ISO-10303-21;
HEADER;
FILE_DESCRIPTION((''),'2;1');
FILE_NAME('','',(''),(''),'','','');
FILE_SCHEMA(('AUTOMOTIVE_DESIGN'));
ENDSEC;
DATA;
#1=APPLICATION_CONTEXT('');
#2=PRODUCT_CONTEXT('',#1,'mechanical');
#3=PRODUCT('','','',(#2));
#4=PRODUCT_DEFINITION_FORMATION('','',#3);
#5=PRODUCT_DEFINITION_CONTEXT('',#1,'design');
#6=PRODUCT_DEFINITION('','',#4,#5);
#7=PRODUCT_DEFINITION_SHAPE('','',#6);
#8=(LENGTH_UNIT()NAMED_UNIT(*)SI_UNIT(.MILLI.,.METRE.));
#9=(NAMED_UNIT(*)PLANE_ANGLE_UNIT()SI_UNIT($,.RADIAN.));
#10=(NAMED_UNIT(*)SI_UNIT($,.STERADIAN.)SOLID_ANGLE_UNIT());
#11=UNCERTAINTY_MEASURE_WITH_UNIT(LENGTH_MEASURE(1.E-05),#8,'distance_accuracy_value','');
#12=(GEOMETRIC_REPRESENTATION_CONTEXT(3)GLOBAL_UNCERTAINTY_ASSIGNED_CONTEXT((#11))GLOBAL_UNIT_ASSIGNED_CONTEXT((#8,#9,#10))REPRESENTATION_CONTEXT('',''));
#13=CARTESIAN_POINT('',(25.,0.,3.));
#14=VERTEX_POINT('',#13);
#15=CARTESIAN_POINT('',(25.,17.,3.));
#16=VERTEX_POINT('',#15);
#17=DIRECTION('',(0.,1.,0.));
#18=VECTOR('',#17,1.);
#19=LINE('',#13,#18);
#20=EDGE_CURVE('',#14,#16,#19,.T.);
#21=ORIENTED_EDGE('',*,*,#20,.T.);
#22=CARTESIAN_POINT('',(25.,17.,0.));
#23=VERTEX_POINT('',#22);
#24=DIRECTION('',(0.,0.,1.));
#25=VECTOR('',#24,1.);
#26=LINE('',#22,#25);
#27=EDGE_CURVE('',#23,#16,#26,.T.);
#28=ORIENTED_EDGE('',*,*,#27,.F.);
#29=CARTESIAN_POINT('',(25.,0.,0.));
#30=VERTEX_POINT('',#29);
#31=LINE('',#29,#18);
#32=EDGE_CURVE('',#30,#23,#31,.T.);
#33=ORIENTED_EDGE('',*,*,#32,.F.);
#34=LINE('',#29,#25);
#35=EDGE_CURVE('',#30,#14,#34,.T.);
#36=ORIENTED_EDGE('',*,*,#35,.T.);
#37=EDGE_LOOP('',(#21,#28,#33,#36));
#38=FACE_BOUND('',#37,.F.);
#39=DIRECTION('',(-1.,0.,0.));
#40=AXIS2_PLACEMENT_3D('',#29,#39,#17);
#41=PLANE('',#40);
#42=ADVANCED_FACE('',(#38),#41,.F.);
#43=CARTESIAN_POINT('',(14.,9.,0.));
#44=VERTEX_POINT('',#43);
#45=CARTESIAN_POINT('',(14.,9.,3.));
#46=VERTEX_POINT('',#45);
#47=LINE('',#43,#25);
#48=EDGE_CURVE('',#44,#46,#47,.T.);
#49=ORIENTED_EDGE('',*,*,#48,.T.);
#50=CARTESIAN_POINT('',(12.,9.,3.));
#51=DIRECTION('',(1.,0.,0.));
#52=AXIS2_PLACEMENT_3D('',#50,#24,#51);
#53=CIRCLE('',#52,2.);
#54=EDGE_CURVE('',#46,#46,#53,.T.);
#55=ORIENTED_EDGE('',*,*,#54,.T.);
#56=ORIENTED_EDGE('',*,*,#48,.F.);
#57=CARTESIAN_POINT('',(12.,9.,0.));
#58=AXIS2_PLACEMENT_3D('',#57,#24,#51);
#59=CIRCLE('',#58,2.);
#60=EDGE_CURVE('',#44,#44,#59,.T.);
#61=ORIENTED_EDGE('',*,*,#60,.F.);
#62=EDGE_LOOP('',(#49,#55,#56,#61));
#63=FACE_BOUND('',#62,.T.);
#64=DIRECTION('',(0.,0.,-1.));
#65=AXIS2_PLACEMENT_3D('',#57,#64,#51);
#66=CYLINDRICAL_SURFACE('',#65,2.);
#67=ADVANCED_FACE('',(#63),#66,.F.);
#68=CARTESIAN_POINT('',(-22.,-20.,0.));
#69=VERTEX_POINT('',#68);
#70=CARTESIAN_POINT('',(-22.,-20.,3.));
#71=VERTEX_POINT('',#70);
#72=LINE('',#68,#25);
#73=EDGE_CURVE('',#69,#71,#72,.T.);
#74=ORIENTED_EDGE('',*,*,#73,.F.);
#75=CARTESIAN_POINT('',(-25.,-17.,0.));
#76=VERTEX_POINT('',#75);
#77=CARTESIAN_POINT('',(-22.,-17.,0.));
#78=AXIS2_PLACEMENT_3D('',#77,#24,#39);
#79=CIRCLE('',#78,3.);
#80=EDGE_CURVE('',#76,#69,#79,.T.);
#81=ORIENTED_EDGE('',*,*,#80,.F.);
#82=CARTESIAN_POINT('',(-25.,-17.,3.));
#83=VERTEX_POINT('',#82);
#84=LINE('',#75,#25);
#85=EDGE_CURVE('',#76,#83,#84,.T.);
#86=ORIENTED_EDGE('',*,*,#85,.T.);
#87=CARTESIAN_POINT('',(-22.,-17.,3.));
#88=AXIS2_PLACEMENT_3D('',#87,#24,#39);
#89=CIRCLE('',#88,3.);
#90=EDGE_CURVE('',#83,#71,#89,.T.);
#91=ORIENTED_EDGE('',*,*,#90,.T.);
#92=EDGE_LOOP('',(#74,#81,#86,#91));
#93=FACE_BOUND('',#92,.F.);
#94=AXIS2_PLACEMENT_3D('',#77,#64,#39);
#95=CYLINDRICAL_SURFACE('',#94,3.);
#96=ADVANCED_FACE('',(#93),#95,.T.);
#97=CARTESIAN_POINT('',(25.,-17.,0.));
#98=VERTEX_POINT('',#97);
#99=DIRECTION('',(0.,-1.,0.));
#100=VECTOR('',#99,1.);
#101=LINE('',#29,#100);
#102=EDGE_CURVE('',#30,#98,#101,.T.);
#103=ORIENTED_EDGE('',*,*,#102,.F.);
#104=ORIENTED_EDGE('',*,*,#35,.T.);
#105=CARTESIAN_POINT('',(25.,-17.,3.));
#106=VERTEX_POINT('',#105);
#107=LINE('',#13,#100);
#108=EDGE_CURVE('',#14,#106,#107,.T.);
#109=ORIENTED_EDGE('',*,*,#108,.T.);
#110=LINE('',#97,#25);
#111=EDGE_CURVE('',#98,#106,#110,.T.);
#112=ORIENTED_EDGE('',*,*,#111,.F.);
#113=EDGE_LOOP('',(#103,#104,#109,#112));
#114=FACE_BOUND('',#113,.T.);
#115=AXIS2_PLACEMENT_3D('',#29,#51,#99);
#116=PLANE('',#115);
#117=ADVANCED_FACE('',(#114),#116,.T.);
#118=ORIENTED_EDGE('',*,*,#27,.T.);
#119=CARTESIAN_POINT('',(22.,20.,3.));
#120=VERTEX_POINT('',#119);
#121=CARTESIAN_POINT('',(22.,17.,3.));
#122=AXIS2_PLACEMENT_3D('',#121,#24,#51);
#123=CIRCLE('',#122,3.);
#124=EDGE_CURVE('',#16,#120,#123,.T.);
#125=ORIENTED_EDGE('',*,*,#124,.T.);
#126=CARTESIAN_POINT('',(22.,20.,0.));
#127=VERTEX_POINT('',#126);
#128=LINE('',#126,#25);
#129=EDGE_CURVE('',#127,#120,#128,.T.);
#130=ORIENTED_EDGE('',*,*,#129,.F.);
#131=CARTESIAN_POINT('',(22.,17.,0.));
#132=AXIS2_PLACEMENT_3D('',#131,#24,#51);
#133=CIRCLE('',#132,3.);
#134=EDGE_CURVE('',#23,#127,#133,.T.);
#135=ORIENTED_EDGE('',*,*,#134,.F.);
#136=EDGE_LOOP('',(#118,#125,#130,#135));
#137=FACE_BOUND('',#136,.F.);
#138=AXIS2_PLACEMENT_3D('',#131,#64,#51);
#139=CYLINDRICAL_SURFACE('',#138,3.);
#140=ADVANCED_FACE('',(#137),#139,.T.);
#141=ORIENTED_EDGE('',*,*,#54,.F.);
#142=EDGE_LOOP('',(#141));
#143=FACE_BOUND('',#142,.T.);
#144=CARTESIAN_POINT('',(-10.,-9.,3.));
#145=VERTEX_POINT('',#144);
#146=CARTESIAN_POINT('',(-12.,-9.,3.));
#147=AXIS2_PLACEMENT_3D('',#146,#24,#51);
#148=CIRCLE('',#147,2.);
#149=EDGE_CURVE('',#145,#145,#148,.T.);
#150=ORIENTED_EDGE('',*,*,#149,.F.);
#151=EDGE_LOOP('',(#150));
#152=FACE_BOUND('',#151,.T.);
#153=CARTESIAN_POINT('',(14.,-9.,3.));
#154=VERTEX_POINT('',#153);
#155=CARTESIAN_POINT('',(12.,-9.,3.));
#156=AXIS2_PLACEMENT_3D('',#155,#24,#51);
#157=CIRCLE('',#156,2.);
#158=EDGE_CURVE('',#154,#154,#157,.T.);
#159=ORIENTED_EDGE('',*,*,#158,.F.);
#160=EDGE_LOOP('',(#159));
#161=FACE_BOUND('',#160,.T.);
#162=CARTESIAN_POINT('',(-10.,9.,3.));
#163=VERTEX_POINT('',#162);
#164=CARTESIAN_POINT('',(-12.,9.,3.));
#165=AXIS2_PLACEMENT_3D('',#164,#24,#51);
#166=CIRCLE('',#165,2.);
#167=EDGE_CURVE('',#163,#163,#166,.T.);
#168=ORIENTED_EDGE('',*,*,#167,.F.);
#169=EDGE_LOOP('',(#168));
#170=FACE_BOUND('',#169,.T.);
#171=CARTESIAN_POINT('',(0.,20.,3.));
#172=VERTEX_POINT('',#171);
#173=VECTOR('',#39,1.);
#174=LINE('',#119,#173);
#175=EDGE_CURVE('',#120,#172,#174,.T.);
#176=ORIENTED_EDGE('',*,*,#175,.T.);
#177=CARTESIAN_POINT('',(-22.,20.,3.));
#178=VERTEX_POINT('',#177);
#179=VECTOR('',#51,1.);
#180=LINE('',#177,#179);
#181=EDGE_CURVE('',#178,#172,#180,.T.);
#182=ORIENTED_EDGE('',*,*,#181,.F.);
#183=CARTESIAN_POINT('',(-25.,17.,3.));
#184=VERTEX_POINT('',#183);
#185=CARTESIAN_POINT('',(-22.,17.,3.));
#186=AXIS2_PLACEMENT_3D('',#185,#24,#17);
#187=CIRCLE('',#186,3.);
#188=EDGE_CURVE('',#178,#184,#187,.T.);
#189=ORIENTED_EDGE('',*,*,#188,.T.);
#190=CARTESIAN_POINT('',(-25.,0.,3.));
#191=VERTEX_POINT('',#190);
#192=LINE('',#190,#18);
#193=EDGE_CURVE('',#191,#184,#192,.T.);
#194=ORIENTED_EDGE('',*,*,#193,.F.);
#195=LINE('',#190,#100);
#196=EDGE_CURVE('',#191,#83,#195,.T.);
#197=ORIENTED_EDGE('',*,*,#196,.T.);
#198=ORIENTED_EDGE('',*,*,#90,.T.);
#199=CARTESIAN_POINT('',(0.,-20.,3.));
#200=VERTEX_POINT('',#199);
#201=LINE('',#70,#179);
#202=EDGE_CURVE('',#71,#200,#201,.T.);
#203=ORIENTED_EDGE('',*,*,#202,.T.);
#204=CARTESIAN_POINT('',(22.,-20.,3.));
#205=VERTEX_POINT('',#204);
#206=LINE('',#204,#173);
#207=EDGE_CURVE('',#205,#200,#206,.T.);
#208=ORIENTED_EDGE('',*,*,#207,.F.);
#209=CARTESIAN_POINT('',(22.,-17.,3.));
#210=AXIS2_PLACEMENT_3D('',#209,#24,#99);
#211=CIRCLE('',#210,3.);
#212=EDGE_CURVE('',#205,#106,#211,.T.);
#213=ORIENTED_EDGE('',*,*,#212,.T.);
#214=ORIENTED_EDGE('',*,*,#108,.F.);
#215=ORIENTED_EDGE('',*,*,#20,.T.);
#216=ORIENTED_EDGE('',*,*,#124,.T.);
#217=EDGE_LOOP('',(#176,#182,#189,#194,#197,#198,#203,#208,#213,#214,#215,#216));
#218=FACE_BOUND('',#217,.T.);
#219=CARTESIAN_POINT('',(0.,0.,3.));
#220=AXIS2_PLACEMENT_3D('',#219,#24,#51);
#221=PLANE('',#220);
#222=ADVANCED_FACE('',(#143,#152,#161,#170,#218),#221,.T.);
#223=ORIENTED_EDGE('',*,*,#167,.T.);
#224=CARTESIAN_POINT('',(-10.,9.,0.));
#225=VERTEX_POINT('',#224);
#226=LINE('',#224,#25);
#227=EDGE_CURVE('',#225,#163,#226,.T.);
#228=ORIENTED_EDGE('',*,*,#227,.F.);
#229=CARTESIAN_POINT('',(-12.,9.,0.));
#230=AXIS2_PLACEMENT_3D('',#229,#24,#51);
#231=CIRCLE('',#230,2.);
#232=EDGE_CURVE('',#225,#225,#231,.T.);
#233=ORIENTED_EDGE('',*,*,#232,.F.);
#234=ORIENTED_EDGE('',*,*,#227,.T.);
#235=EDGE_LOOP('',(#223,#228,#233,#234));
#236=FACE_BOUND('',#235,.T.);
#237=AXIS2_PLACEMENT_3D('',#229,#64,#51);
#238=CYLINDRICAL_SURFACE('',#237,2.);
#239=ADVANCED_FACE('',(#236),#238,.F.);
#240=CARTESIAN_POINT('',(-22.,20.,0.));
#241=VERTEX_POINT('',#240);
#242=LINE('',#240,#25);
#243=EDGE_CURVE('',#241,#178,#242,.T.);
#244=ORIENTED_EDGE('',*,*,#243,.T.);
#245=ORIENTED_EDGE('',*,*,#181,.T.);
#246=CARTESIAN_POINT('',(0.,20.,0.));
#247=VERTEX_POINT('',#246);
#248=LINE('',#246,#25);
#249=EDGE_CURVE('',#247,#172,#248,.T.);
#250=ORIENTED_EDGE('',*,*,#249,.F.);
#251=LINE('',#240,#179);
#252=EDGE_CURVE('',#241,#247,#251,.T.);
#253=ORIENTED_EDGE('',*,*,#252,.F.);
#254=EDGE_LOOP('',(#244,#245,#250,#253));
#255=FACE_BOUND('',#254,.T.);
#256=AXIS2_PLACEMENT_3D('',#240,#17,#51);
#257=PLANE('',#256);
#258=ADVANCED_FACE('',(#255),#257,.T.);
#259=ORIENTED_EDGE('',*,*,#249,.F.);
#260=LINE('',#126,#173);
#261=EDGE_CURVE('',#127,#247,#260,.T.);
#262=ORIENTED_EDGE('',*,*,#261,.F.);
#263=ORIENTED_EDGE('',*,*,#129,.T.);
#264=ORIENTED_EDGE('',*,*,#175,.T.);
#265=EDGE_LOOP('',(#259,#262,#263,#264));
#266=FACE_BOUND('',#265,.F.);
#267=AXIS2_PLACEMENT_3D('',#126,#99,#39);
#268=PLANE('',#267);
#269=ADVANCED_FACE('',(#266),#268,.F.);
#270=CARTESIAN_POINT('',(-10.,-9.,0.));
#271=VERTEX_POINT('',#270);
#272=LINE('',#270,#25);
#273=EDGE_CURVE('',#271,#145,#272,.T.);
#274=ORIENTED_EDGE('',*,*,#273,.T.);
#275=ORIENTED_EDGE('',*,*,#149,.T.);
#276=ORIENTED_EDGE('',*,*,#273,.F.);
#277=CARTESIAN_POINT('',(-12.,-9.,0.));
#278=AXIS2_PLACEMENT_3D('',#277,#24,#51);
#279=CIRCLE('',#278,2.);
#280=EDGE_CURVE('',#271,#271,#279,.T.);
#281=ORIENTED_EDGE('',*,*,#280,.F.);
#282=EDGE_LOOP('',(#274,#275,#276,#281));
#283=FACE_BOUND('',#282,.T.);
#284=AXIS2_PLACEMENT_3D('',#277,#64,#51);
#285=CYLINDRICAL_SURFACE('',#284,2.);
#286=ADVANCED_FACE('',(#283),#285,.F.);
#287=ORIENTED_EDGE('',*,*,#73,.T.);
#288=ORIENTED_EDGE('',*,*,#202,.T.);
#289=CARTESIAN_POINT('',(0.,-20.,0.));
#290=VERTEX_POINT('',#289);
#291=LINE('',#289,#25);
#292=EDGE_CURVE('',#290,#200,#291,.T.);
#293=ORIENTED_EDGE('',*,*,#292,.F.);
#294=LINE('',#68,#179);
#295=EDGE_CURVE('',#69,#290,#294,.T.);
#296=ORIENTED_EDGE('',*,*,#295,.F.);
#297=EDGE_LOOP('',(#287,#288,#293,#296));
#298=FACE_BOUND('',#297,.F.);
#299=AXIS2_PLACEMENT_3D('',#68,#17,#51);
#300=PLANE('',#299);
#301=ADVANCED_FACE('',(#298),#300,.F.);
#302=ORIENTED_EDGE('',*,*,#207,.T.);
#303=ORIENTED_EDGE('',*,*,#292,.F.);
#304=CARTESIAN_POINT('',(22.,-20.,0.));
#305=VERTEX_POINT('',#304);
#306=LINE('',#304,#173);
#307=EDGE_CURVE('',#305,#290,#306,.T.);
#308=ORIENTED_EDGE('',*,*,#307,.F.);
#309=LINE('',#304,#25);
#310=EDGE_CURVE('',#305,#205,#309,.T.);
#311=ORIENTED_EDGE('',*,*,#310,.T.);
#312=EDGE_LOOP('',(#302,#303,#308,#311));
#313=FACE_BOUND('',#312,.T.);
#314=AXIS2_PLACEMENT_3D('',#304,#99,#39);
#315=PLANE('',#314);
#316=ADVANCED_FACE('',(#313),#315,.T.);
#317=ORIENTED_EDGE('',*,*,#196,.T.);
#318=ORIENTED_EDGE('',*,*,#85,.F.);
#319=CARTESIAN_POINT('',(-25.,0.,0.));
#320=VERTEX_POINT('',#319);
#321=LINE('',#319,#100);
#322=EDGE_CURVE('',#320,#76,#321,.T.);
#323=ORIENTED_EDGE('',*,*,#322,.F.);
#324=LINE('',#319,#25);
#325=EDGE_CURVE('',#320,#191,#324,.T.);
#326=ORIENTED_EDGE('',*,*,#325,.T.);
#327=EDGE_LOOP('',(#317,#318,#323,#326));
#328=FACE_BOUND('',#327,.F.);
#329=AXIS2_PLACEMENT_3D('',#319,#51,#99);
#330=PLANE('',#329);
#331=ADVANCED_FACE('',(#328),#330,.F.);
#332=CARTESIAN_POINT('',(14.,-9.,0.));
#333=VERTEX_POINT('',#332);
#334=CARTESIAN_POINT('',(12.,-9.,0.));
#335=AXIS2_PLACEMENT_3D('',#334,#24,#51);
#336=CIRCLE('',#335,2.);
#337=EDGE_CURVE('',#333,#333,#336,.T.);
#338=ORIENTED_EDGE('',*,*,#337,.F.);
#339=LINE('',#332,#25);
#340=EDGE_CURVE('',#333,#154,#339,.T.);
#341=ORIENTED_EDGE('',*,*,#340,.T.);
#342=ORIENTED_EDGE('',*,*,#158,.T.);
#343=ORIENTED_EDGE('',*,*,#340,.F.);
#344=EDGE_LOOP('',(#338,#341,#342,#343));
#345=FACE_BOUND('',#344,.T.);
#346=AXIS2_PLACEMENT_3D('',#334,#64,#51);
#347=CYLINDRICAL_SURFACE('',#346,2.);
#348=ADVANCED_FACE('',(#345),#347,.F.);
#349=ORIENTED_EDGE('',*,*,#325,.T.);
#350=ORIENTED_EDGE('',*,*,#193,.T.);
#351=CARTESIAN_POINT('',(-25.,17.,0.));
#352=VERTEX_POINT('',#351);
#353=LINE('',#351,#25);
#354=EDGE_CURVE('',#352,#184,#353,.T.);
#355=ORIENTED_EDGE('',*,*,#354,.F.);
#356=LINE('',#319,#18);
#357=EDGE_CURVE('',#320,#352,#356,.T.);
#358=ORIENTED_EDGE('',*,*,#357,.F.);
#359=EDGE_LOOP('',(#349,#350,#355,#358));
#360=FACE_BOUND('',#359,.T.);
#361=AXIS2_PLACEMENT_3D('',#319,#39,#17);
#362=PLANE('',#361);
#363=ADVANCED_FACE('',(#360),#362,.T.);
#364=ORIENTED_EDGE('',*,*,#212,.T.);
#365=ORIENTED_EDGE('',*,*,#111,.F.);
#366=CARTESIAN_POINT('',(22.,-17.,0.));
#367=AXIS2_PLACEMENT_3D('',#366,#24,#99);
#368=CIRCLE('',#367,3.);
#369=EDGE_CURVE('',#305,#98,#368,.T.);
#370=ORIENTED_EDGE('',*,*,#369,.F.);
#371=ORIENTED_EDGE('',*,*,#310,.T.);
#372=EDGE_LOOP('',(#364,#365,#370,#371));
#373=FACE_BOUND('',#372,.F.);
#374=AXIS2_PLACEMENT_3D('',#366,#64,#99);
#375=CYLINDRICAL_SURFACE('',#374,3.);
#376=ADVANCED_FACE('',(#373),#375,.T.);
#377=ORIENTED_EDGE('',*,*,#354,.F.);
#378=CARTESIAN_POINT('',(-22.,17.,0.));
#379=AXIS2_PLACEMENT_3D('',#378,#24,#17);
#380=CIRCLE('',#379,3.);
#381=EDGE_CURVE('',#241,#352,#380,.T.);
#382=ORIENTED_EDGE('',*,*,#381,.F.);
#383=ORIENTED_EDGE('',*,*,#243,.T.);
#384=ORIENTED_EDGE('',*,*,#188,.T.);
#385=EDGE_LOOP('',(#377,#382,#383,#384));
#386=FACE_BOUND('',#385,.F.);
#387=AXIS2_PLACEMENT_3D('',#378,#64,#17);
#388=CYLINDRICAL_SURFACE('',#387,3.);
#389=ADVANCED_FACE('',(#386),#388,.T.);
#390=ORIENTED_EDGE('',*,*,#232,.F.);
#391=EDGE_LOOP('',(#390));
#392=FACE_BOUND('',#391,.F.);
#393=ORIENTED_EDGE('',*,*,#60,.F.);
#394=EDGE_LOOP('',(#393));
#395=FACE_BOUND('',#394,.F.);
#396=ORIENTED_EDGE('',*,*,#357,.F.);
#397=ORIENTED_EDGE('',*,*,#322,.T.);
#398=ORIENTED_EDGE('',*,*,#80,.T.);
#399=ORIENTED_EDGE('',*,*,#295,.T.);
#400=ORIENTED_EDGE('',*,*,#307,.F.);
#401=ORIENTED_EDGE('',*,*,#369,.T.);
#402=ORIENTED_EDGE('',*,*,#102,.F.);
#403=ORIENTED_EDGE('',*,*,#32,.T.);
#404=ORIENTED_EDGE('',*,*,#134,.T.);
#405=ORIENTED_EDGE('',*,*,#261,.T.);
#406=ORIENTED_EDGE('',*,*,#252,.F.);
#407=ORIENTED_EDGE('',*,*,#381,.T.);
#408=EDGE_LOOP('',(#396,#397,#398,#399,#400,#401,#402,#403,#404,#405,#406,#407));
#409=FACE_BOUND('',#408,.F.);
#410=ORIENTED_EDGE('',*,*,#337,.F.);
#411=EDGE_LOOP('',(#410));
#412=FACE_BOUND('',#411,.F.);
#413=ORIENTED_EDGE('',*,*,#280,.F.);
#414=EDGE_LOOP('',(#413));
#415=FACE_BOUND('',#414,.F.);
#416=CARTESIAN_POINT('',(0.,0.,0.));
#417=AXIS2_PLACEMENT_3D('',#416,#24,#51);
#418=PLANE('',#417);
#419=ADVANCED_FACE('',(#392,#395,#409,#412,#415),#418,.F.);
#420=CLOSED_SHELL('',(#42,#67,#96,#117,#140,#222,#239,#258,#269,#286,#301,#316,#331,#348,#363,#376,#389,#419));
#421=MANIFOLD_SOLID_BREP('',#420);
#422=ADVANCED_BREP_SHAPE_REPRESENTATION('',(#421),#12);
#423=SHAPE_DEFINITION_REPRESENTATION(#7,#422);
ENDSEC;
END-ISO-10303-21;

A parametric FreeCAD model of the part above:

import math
import FreeCAD as App
import Part
import Sketcher

V = App.Vector

doc = App.newDocument("Part")
params = doc.addObject("Spreadsheet::Sheet", "Params")
for row, (alias, value) in enumerate([
    ("sketch1_diameter", "4 mm"),
    ("sketch1_radius", "3 mm"),
    ("pad1_length", "3 mm"),
], start=1):
    params.set(f"A{row}", alias)
    params.set(f"B{row}", "=" + value)
    params.setAlias(f"B{row}", alias)

body = doc.addObject("PartDesign::Body", "Body")

sketch1 = body.newObject("Sketcher::SketchObject", "Sketch")
sketch1.AttachmentSupport = (doc.getObject("XY_Plane"), [""])
sketch1.MapMode = "FlatFace"
sketch1.addGeometry([
    Part.LineSegment(V(-25, 17, 0), V(-25, -17, 0)),
    Part.ArcOfCircle(Part.Circle(V(-22, -17, 0), V(0, 0, 1), 3), math.radians(180), math.radians(270)),
    Part.LineSegment(V(-22, -20, 0), V(22, -20, 0)),
    Part.ArcOfCircle(Part.Circle(V(22, -17, 0), V(0, 0, 1), 3), math.radians(-90), math.radians(0)),
    Part.LineSegment(V(25, -17, 0), V(25, 17, 0)),
    Part.ArcOfCircle(Part.Circle(V(22, 17, 0), V(0, 0, 1), 3), math.radians(0), math.radians(90)),
    Part.LineSegment(V(22, 20, 0), V(-22, 20, 0)),
    Part.ArcOfCircle(Part.Circle(V(-22, 17, 0), V(0, 0, 1), 3), math.radians(90), math.radians(180)),
    Part.Circle(V(-12, -9, 0), V(0, 0, 1), 2),
    Part.Circle(V(12, -9, 0), V(0, 0, 1), 2),
    Part.Circle(V(-12, 9, 0), V(0, 0, 1), 2),
    Part.Circle(V(12, 9, 0), V(0, 0, 1), 2),
], False)
sketch1.addConstraint([
    Sketcher.Constraint("Tangent", 0, 2, 1, 1),
    Sketcher.Constraint("Tangent", 1, 2, 2, 1),
    Sketcher.Constraint("Tangent", 2, 2, 3, 1),
    Sketcher.Constraint("Tangent", 3, 2, 4, 1),
    Sketcher.Constraint("Tangent", 4, 2, 5, 1),
    Sketcher.Constraint("Tangent", 5, 2, 6, 1),
    Sketcher.Constraint("Tangent", 6, 2, 7, 1),
    Sketcher.Constraint("Tangent", 7, 2, 0, 1),
    Sketcher.Constraint("Vertical", 0),
    Sketcher.Constraint("Horizontal", 2),
    Sketcher.Constraint("Vertical", 4),
    Sketcher.Constraint("Horizontal", 6),
    Sketcher.Constraint("Equal", 1, 3),
    Sketcher.Constraint("Equal", 3, 5),
    Sketcher.Constraint("Equal", 5, 7),
    Sketcher.Constraint("Equal", 8, 9),
    Sketcher.Constraint("Equal", 9, 10),
    Sketcher.Constraint("Equal", 10, 11),
    Sketcher.Constraint("Symmetric", 1, 3, 5, 3, -1, 1),
    Sketcher.Constraint("Symmetric", 9, 3, 10, 3, -1, 1),
    Sketcher.Constraint("Symmetric", 8, 3, 11, 3, -1, 1),
    Sketcher.Constraint("Symmetric", 8, 3, 9, 3, -2),
    Sketcher.Constraint("Diameter", 8, 4.0),
    Sketcher.Constraint("Radius", 1, 3.0),
    Sketcher.Constraint("DistanceX", 8, 3, -1, 1, 12.0),
    Sketcher.Constraint("DistanceY", 8, 3, -1, 1, 9.0),
    Sketcher.Constraint("DistanceX", 0, 2, -1, 1, 25.0),
    Sketcher.Constraint("DistanceY", 1, 2, -1, 1, 20.0),
])
sketch1.setExpression("Constraints[22]", "Params.sketch1_diameter")
sketch1.setExpression("Constraints[23]", "Params.sketch1_radius")
pad1 = body.newObject("PartDesign::Pad", "Pad")
pad1.Profile = sketch1
pad1.setExpression("Length", "Params.pad1_length")

doc.recompute()
